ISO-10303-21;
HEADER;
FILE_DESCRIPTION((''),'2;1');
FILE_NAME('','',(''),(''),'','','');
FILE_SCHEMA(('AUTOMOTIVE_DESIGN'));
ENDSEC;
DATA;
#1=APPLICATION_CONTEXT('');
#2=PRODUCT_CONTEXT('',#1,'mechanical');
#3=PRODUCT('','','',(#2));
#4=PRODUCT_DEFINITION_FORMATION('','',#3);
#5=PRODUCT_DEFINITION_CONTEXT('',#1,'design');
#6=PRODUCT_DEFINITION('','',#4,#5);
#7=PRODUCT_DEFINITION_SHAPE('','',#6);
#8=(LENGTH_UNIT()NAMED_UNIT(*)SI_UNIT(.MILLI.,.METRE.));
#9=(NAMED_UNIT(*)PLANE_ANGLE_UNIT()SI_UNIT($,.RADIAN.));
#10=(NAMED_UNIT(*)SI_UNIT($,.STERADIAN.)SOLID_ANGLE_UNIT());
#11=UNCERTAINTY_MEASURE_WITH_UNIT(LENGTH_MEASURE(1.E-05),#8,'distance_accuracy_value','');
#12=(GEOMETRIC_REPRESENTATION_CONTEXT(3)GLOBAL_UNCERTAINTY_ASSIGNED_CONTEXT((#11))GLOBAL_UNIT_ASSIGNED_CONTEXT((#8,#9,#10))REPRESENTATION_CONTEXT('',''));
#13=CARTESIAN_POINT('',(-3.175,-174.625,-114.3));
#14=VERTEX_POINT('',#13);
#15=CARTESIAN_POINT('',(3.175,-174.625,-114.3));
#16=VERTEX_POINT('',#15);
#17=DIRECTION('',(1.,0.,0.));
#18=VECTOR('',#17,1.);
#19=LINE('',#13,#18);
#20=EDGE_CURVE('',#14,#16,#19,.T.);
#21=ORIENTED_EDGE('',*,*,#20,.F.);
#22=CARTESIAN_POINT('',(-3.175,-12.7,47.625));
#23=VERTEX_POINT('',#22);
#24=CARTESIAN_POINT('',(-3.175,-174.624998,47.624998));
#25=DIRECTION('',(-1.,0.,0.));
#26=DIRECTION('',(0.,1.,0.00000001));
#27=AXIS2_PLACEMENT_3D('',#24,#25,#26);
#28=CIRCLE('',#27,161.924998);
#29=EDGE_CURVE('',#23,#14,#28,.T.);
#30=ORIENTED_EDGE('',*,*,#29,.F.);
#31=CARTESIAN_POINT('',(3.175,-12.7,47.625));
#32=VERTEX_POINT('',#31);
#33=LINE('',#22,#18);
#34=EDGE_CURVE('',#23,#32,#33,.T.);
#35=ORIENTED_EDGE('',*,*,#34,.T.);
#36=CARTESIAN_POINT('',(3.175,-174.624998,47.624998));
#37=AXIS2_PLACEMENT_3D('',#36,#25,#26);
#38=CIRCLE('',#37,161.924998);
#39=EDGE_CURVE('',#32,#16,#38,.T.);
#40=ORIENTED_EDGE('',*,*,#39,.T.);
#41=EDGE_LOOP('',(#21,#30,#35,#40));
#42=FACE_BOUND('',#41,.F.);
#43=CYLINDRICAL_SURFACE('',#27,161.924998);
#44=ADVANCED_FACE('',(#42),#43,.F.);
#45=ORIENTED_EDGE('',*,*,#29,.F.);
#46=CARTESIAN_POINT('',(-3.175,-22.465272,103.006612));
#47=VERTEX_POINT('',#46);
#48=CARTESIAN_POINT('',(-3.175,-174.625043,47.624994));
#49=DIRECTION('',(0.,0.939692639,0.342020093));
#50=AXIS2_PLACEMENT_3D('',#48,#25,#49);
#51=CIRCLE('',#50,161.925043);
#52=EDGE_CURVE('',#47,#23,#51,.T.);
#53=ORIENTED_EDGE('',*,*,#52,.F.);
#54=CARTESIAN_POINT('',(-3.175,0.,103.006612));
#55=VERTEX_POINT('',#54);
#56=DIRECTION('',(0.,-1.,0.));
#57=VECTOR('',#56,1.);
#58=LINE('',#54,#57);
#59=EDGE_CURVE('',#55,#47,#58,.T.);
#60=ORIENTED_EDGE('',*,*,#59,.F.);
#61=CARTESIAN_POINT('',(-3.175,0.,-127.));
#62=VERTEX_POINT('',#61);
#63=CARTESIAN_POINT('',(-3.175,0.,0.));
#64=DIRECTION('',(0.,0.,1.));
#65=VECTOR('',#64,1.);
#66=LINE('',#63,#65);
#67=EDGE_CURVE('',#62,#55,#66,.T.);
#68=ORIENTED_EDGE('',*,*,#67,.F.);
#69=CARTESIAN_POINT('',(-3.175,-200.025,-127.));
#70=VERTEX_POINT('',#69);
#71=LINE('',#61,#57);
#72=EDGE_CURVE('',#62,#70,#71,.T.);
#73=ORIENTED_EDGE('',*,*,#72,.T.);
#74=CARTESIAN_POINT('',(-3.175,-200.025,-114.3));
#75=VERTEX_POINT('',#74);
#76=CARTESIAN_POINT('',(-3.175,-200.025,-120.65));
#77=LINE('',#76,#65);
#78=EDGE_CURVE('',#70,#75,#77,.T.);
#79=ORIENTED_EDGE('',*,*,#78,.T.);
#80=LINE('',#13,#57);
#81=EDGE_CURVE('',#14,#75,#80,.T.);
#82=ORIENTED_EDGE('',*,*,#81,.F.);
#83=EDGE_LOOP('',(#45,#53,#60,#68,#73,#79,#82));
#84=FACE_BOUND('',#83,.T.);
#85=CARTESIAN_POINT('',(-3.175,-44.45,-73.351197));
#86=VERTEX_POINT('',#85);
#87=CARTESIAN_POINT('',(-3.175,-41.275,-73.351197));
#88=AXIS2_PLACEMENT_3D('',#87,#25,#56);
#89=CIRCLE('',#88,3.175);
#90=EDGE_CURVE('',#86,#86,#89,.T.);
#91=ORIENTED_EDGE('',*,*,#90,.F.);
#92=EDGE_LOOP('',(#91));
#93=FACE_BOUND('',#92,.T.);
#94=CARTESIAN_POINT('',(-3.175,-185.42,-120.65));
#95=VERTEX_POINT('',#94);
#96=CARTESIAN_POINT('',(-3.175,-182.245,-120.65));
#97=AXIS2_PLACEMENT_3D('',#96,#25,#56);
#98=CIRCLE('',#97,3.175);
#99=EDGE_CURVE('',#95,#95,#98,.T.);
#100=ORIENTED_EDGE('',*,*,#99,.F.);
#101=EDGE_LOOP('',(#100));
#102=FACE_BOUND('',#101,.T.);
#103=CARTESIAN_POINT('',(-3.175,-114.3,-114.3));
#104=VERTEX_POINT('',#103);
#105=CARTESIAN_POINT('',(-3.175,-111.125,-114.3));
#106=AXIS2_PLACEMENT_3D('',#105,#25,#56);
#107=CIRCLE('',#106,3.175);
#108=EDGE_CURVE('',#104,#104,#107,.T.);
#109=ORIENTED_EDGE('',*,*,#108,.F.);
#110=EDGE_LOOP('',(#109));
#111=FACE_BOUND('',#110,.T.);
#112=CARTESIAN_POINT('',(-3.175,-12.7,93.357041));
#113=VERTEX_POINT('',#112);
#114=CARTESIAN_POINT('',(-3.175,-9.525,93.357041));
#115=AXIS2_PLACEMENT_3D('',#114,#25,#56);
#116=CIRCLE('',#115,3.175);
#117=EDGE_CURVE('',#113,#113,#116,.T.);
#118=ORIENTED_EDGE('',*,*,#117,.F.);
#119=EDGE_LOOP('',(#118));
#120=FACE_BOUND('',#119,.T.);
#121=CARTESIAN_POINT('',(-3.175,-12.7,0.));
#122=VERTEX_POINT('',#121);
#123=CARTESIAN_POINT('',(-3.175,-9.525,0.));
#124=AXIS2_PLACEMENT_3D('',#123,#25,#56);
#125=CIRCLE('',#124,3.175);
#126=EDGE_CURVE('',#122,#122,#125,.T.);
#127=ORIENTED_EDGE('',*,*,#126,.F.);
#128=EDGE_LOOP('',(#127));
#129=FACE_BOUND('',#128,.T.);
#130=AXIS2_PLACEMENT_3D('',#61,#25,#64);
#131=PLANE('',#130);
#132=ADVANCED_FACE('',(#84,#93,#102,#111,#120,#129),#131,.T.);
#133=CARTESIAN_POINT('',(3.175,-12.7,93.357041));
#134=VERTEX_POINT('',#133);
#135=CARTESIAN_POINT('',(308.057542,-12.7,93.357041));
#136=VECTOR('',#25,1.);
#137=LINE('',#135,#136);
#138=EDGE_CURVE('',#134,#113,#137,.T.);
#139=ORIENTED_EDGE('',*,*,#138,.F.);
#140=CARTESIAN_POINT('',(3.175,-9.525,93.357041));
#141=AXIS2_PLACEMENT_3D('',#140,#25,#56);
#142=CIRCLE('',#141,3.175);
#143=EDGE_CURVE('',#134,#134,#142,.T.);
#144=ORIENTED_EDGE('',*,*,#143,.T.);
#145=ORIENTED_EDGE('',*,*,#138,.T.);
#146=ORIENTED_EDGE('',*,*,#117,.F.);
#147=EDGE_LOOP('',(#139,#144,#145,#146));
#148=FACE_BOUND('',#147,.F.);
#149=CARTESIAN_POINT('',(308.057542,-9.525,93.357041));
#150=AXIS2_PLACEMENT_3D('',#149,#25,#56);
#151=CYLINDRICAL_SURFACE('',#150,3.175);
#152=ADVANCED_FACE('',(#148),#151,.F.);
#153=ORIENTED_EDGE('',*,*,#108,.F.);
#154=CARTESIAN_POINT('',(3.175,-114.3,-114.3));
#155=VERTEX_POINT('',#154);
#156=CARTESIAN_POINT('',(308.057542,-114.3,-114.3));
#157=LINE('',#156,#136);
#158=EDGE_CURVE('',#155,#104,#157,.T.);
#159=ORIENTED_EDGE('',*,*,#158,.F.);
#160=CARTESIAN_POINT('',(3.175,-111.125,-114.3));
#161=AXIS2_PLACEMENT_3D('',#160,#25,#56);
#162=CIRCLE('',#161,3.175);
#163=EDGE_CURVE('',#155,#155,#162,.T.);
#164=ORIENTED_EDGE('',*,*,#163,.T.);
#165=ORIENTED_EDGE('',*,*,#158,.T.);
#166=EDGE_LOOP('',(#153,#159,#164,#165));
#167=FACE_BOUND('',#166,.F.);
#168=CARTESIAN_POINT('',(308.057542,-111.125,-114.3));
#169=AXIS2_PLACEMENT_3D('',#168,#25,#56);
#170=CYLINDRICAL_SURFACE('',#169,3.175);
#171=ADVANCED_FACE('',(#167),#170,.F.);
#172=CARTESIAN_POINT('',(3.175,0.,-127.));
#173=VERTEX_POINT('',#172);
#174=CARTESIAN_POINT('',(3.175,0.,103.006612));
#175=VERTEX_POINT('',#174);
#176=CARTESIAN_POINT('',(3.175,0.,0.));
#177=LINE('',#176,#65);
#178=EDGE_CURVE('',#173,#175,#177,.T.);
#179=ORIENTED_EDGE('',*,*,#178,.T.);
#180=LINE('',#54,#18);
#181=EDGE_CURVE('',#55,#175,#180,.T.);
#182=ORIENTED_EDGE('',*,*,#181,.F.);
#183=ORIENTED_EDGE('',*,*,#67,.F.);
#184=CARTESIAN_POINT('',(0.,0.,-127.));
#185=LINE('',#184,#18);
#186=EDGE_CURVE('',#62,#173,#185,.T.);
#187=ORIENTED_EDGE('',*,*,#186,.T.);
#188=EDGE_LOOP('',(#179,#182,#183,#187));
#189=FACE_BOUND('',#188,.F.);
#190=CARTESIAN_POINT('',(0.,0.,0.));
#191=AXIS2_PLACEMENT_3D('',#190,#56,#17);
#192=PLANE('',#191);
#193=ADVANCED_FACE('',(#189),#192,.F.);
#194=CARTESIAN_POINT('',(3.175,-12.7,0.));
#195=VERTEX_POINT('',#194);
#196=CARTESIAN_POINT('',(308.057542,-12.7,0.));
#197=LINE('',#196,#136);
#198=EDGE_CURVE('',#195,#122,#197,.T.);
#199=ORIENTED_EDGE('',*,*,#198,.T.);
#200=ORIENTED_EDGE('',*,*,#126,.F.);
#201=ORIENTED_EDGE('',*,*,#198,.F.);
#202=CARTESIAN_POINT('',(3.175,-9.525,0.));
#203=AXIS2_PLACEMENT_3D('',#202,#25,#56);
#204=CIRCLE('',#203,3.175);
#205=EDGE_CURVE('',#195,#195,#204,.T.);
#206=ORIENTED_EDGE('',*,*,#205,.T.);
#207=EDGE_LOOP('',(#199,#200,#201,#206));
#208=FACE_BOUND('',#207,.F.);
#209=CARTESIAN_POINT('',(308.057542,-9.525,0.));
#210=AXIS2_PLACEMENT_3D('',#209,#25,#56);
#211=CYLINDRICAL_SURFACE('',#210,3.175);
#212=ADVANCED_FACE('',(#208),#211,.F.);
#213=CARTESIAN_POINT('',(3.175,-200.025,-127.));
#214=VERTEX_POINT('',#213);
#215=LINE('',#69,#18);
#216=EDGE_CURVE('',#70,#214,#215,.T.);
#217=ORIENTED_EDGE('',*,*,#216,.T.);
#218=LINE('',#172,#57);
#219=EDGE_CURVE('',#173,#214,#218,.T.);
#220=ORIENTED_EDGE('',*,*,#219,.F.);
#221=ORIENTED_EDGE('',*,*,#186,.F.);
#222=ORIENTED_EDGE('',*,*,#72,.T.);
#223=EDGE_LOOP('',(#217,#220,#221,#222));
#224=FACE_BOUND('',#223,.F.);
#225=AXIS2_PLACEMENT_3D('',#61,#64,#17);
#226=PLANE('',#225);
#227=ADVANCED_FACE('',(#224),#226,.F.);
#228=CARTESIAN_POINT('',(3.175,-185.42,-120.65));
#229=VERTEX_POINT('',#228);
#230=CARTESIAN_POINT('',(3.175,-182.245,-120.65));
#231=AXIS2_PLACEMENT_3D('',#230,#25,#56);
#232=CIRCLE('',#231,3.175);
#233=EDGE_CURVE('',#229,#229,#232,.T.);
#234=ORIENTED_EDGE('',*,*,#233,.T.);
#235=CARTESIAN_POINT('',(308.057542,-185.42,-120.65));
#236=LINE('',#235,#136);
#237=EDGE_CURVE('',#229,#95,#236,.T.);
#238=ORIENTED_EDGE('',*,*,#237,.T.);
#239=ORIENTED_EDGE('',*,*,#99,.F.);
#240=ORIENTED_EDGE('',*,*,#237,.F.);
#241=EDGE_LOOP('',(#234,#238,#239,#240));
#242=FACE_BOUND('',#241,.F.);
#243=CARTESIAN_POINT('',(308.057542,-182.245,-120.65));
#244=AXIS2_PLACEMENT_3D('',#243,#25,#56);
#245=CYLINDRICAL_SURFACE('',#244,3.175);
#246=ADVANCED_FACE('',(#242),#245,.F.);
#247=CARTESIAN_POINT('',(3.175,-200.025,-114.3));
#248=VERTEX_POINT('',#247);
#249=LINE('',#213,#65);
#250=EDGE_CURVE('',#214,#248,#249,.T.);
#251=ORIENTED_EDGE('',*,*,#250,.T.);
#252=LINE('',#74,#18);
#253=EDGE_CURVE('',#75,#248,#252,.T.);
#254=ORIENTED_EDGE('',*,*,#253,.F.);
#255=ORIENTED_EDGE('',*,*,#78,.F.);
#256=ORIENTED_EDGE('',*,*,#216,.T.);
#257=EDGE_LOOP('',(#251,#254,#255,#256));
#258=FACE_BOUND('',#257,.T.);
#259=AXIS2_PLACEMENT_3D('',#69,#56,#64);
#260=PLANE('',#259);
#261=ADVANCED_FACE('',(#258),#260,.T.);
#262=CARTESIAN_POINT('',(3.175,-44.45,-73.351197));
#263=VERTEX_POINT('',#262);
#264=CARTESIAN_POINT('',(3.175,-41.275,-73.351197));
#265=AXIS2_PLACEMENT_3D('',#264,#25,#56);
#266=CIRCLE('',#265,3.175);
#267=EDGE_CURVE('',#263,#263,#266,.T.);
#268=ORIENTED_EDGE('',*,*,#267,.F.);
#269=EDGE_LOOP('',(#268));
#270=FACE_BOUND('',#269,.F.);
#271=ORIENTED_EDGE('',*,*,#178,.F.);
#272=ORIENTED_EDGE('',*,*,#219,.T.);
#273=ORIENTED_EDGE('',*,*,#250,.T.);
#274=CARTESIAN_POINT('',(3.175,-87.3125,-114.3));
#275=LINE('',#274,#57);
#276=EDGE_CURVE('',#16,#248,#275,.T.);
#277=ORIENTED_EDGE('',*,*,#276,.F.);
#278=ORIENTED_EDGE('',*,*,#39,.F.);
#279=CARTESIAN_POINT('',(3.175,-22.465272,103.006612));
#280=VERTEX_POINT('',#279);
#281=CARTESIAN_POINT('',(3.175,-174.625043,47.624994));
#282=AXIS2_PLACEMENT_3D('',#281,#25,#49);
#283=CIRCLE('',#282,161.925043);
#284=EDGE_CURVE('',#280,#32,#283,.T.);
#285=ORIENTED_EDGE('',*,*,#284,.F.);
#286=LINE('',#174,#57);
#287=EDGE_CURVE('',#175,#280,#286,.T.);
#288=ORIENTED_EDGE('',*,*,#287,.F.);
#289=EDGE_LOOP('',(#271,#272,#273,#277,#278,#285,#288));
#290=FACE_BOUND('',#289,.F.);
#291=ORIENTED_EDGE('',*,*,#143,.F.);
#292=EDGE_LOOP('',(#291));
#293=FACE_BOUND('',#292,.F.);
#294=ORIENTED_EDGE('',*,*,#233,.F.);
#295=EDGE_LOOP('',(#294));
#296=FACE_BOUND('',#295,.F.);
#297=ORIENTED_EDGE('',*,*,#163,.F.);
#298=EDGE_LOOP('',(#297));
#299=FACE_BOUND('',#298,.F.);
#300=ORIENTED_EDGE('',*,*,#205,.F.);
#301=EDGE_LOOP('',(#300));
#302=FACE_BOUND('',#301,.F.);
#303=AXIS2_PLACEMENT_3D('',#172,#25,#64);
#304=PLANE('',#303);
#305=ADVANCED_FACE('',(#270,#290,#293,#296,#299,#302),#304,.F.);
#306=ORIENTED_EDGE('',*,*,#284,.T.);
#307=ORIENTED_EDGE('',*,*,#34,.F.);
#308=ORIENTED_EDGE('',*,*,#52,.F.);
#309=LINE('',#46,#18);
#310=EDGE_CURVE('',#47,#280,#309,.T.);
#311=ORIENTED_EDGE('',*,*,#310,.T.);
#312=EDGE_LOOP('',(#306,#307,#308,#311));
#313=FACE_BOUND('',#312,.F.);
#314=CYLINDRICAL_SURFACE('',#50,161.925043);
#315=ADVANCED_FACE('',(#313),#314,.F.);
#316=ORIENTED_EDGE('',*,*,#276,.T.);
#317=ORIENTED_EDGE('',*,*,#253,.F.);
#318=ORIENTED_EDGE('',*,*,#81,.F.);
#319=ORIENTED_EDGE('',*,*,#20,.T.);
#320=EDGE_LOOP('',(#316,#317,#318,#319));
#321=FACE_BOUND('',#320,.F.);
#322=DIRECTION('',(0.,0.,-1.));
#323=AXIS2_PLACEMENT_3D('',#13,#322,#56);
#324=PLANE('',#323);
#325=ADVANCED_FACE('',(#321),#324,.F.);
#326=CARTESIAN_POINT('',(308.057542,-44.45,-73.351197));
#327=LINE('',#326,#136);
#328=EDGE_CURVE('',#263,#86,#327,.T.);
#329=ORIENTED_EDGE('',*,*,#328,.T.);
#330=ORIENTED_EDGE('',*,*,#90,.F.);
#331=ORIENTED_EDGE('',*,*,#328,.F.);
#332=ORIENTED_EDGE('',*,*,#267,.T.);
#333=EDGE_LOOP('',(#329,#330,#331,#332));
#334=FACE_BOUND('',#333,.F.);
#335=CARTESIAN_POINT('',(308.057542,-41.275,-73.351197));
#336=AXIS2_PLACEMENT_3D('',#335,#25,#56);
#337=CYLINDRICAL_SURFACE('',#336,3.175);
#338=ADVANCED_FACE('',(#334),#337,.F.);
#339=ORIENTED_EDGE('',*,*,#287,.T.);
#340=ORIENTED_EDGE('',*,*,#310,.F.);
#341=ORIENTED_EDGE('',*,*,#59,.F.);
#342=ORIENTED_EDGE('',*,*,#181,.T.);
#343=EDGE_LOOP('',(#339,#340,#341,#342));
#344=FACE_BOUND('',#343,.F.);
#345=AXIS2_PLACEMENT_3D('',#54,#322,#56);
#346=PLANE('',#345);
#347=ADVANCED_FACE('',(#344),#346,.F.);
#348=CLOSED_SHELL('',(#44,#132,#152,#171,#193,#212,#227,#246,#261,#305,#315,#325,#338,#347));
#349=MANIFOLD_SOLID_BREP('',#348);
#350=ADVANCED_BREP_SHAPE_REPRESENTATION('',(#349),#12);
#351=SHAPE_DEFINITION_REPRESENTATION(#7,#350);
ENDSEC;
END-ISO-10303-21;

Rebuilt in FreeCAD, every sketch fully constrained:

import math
import FreeCAD as App
import Part
import Sketcher

V = App.Vector
Q = App.Units.Quantity


def add_polygon(sketch, points):
    """Adds a closed chain of lines whose ends are joined by coincident constraints."""
    first, n = sketch.GeometryCount, len(points)
    for a, b in zip(points, points[1:] + points[:1]):
        sketch.addGeometry(Part.LineSegment(App.Vector(*a, 0), App.Vector(*b, 0)), False)
    for i in range(n):
        sketch.addConstraint(Sketcher.Constraint("Coincident", first + i, 2, first + (i + 1) % n, 1))

doc = App.newDocument("Part")
params = doc.addObject("Spreadsheet::Sheet", "Params")
for row, (alias, value) in enumerate([
    ("sketch1_height", "10 in"),
    ("sketch1_width", "0.25 in"),
    ("pad1_length", "11 in"),
    ("sketch2_width", "11 in"),
    ("sketch2_height", "9.5 in"),
    ("sketch2_radius", "6.3749999 in"),
    ("pocket1_length", "1 in"),
    ("sketch3_height", "0.5 in"),
    ("sketch3_width", "3.125 in"),
    ("pocket2_length", "1 in"),
    ("sketch4_diameter", "0.25 in"),
    ("hole_diameter", "0.25 in"),
], start=1):
    params.set(f"A{row}", alias)
    params.set(f"B{row}", "=" + value)
    params.setAlias(f"B{row}", alias)

body = doc.addObject("PartDesign::Body", "Body")

# Sketch on XZ plane
sketch1 = body.newObject("Sketcher::SketchObject", "Sketch")
sketch1.AttachmentSupport = (doc.getObject("XZ_Plane"), [""])
sketch1.MapMode = "FlatFace"
add_polygon(sketch1, [(-3.175, 127), (-3.175, -127), (3.175, -127), (3.175, 127)])  # lines 0-3
sketch1.addConstraint([
    Sketcher.Constraint("Vertical", 0),
    Sketcher.Constraint("Horizontal", 1),
    Sketcher.Constraint("Vertical", 2),
    Sketcher.Constraint("Horizontal", 3),
    Sketcher.Constraint("Symmetric", 0, 2, 2, 2, -1, 1),
    Sketcher.Constraint("DistanceY", 0, 2, 0, 1, Q("10 in")),
    Sketcher.Constraint("DistanceX", 1, 1, 1, 2, Q("0.25 in")),
])
sketch1.setExpression("Constraints[9]", "Params.sketch1_height")
sketch1.setExpression("Constraints[10]", "Params.sketch1_width")
pad1 = body.newObject("PartDesign::Pad", "Pad")
pad1.Profile = sketch1
pad1.setExpression("Length", "Params.pad1_length")

# Sketch on YZ plane
sketch2 = body.newObject("Sketcher::SketchObject", "Sketch001")
sketch2.AttachmentSupport = (doc.getObject("YZ_Plane"), [""])
sketch2.MapMode = "FlatFace"
sketch2.AttachmentOffset = App.Placement(V(0, 0, -0.125 * 25.4), App.Rotation())
sketch2.addGeometry([
    Part.LineSegment(V(0, 103.006612, 0), V(-22.465272, 103.006612, 0)),  # 0
    Part.ArcOfCircle(Part.Circle(V(-174.625043, 47.624994, 0), V(0, 0, 1), 161.925043), math.radians(0.000002), math.radians(19.999997)),  # 1
    Part.ArcOfCircle(Part.Circle(V(-174.624998, 47.624998, 0), V(0, 0, 1), 161.924998), math.radians(-90.000001), math.radians(0.000001)),  # 2
    Part.LineSegment(V(-174.625, -114.3, 0), V(-279.4, -114.3, 0)),  # 3
    Part.LineSegment(V(-279.4, -114.3, 0), V(-279.4, 127, 0)),  # 4
    Part.LineSegment(V(-279.4, 127, 0), V(0, 127, 0)),  # 5
    Part.LineSegment(V(0, 127, 0), V(0, 103.006612, 0)),  # 6
], False)
sketch2.addConstraint([
    Sketcher.Constraint("Coincident", 0, 2, 1, 2),
    Sketcher.Constraint("Tangent", 1, 1, 2, 2),
    Sketcher.Constraint("Tangent", 2, 1, 3, 1),
    Sketcher.Constraint("Coincident", 3, 2, 4, 1),
    Sketcher.Constraint("Coincident", 4, 2, 5, 1),
    Sketcher.Constraint("Coincident", 5, 2, 6, 1),
    Sketcher.Constraint("Coincident", 6, 2, 0, 1),
    Sketcher.Constraint("Horizontal", 0),
    Sketcher.Constraint("Horizontal", 3),
    Sketcher.Constraint("Vertical", 4),
    Sketcher.Constraint("Horizontal", 5),
    Sketcher.Constraint("Vertical", 6),
    Sketcher.Constraint("PointOnObject", 5, 2, -2),
    Sketcher.Constraint("Horizontal", 2, 3, 1, 1),
    Sketcher.Constraint("DistanceX", 5, 1, 5, 2, Q("11 in")),
    Sketcher.Constraint("DistanceY", 4, 1, 4, 2, Q("9.5 in")),
    Sketcher.Constraint("DistanceY", -1, 1, 4, 2, Q("5 in")),
    Sketcher.Constraint("Radius", 2, Q("6.3749999 in")),
    Sketcher.Constraint("DistanceX", 1, 1, -1, 1, Q("0.5 in")),
    Sketcher.Constraint("Radius", 1, Q("161.925043 mm")),
    Sketcher.Constraint("DistanceX", 0, 2, 0, 1, Q("22.465272 mm")),
])
sketch2.setExpression("Constraints[14]", "Params.sketch2_width")
sketch2.setExpression("Constraints[15]", "Params.sketch2_height")
sketch2.setExpression("Constraints[17]", "Params.sketch2_radius")
pocket1 = body.newObject("PartDesign::Pocket", "Pocket")
pocket1.Profile = sketch2
pocket1.setExpression("Length", "Params.pocket1_length")
pocket1.Reversed = True

# Sketch on YZ plane
sketch3 = body.newObject("Sketcher::SketchObject", "Sketch002")
sketch3.AttachmentSupport = (doc.getObject("YZ_Plane"), [""])
sketch3.MapMode = "FlatFace"
sketch3.AttachmentOffset = App.Placement(V(0, 0, -0.125 * 25.4), App.Rotation())
add_polygon(sketch3, [(-200.025, -114.3), (-200.025, -127), (-279.4, -127), (-279.4, -114.3)])  # lines 0-3
sketch3.addConstraint([
    Sketcher.Constraint("Vertical", 0),
    Sketcher.Constraint("Horizontal", 1),
    Sketcher.Constraint("Vertical", 2),
    Sketcher.Constraint("Horizontal", 3),
    Sketcher.Constraint("DistanceY", 0, 2, 0, 1, Q("0.5 in")),
    Sketcher.Constraint("DistanceY", 0, 2, -1, 1, Q("5 in")),
    Sketcher.Constraint("DistanceX", 1, 2, -1, 1, Q("11 in")),
    Sketcher.Constraint("DistanceX", 1, 2, 1, 1, Q("3.125 in")),
])
sketch3.setExpression("Constraints[8]", "Params.sketch3_height")
sketch3.setExpression("Constraints[11]", "Params.sketch3_width")
pocket2 = body.newObject("PartDesign::Pocket", "Pocket001")
pocket2.Profile = sketch3
pocket2.setExpression("Length", "Params.pocket2_length")
pocket2.Reversed = True

# Sketch on YZ plane
sketch4 = body.newObject("Sketcher::SketchObject", "Sketch003")
sketch4.AttachmentSupport = (doc.getObject("YZ_Plane"), [""])
sketch4.MapMode = "FlatFace"
sketch4.AttachmentOffset = App.Placement(V(0, 0, 0.125 * 25.4), App.Rotation())
sketch4.addGeometry([
    Part.Circle(V(-9.525, 93.357041, 0), V(0, 0, 1), 3.175),  # 0
    Part.Circle(V(-9.525, 0, 0), V(0, 0, 1), 3.175),  # 1
    Part.Circle(V(-41.275, -73.351197, 0), V(0, 0, 1), 3.175),  # 2
    Part.Circle(V(-111.125, -114.3, 0), V(0, 0, 1), 3.175),  # 3
    Part.Circle(V(-182.245, -120.65, 0), V(0, 0, 1), 3.175),  # 4
], False)
sketch4.addConstraint([
    Sketcher.Constraint("Equal", 0, 1),
    Sketcher.Constraint("Equal", 1, 2),
    Sketcher.Constraint("Equal", 2, 3),
    Sketcher.Constraint("Equal", 3, 4),
    Sketcher.Constraint("PointOnObject", 1, 3, -1),
    Sketcher.Constraint("Vertical", 0, 3, 1, 3),
    Sketcher.Constraint("Diameter", 0, Q("0.25 in")),
    Sketcher.Constraint("DistanceX", 3, 3, 1, 3, Q("4 in")),
    Sketcher.Constraint("DistanceY", 3, 3, -1, 1, Q("4.5 in")),
    Sketcher.Constraint("DistanceX", 4, 3, 3, 3, Q("2.8 in")),
    Sketcher.Constraint("DistanceY", 4, 3, -1, 1, Q("4.75 in")),
    Sketcher.Constraint("DistanceX", 2, 3, 1, 3, Q("1.25 in")),
    Sketcher.Constraint("DistanceX", 0, 3, -1, 1, Q("0.375 in")),
    Sketcher.Constraint("DistanceY", -1, 1, 0, 3, Q("93.357041 mm")),
    Sketcher.Constraint("DistanceY", 2, 3, 0, 3, Q("166.708238 mm")),
])
sketch4.setExpression("Constraints[6]", "Params.sketch4_diameter")
doc.recompute()
hole = body.newObject("PartDesign::Hole", "Hole")
hole.Profile = sketch4
hole.ThreadType = "None"
hole.setExpression("Diameter", "Params.hole_diameter")
hole.DepthType = "ThroughAll"

doc.recompute()
